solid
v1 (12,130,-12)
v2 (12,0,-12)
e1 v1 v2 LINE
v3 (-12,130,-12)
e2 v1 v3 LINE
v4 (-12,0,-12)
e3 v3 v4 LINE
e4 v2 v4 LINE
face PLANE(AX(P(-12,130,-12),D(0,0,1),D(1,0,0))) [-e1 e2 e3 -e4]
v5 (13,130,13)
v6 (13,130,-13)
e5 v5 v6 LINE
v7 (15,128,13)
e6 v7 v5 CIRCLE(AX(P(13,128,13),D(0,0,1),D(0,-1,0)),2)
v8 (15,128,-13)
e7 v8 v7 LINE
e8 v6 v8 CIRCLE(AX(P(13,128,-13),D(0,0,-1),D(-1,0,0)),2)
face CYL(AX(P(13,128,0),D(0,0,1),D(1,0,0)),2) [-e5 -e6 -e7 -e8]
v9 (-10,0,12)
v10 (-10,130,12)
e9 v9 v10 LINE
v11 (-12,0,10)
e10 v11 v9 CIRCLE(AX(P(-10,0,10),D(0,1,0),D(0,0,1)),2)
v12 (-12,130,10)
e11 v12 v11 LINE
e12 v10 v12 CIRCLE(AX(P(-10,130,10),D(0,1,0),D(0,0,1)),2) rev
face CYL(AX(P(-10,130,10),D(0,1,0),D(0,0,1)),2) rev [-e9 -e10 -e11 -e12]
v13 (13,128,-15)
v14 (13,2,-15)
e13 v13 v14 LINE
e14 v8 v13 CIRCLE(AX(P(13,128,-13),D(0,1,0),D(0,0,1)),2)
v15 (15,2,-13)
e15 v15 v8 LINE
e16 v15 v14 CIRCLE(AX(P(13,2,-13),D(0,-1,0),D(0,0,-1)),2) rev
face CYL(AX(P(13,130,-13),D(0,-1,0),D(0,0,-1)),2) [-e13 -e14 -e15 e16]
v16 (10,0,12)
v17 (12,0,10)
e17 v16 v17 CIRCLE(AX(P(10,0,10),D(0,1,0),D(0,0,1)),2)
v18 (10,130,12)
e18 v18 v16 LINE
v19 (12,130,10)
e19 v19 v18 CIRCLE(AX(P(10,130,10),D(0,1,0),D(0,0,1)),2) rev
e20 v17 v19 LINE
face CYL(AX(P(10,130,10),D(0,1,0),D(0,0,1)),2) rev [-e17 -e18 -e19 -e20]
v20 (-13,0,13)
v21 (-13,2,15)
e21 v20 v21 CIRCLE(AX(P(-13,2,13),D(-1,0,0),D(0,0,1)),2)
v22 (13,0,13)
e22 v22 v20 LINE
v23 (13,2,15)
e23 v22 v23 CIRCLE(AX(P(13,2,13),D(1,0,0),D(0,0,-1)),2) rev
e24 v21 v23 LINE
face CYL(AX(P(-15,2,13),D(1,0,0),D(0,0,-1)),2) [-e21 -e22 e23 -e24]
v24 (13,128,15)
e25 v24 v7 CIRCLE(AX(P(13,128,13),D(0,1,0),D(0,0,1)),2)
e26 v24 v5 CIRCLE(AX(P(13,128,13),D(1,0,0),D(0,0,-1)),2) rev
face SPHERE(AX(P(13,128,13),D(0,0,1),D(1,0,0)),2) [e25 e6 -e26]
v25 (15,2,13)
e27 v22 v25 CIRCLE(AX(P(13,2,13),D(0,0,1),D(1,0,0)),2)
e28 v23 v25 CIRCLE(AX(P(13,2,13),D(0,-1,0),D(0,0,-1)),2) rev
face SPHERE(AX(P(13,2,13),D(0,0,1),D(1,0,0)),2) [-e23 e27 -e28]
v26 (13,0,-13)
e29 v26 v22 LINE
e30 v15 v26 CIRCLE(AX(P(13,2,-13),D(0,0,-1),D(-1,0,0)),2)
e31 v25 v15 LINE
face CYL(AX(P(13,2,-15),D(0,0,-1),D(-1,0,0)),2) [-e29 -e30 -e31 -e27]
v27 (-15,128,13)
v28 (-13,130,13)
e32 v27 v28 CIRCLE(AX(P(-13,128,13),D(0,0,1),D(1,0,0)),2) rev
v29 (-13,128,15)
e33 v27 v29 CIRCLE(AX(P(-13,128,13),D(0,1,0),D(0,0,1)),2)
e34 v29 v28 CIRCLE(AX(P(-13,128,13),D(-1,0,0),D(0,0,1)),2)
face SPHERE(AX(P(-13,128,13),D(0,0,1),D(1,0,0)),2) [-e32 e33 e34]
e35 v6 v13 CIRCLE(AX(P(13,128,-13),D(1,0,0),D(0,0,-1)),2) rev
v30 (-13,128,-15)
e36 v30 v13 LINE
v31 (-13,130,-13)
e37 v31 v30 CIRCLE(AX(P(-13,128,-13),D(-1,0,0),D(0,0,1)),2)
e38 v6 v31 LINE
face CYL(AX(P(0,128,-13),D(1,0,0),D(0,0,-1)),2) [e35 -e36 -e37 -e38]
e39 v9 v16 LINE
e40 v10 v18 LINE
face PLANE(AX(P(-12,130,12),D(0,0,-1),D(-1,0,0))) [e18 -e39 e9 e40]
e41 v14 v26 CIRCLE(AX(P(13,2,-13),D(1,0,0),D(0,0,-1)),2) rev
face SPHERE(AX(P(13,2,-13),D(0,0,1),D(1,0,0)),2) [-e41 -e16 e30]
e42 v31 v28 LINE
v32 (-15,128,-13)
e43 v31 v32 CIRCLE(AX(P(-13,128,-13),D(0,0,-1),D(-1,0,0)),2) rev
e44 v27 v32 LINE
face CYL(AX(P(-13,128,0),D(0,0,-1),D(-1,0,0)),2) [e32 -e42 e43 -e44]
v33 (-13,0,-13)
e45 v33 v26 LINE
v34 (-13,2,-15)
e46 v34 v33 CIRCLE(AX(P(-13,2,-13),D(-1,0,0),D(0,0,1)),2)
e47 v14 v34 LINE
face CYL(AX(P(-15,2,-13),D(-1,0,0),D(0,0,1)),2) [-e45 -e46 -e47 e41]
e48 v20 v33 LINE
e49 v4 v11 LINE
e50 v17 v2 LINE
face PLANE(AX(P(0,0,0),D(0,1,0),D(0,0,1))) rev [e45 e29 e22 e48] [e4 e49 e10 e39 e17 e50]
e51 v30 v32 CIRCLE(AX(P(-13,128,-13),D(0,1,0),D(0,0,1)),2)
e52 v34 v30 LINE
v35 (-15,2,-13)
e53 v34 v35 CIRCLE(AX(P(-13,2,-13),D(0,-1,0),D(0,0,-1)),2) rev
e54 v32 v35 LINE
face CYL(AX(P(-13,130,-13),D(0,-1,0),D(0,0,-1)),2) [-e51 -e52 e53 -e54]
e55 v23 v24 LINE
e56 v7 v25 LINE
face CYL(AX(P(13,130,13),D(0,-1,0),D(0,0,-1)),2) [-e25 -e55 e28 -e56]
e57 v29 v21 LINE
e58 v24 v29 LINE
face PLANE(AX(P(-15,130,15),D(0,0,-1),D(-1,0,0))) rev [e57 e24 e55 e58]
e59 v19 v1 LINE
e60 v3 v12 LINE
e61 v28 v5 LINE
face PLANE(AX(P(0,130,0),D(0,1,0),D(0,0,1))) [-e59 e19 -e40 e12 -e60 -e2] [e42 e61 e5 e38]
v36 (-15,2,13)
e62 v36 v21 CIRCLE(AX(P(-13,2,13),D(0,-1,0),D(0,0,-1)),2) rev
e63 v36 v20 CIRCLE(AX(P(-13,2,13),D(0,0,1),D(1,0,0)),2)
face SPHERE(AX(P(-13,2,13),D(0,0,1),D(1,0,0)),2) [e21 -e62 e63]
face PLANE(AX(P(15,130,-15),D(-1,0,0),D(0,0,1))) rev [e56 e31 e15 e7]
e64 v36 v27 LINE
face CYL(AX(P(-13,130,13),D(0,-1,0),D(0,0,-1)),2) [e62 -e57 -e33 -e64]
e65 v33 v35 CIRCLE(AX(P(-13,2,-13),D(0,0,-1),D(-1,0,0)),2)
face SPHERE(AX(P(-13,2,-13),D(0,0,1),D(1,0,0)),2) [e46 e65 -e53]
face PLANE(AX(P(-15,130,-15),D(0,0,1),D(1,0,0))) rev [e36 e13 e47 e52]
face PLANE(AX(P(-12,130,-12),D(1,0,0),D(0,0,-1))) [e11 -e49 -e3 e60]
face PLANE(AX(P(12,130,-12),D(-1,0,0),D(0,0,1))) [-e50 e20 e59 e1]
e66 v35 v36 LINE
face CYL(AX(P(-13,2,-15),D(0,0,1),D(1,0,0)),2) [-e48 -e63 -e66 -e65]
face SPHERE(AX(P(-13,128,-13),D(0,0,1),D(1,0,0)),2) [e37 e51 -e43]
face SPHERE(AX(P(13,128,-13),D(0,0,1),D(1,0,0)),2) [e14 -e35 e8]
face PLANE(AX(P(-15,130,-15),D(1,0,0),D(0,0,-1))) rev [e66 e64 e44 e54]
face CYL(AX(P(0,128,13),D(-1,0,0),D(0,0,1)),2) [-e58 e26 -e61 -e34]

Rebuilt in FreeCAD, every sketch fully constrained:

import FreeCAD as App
import Part
import Sketcher

V = App.Vector


def edges_at(feature, points):
    """Names of the edges that pass closest to the given points."""
    edges = feature.Shape.Edges
    near = lambda p: min(range(len(edges)), key=lambda i: edges[i].distToShape(Part.Vertex(*p))[0])
    return sorted({f"Edge{near(p) + 1}" for p in points})

doc = App.newDocument("Part")
body = doc.addObject("PartDesign::Body", "Body")

# Sketch on XZ plane
sketch1 = body.newObject("Sketcher::SketchObject", "Sketch")
sketch1.AttachmentSupport = (doc.getObject("XZ_Plane"), [""])
sketch1.MapMode = "FlatFace"
sketch1.addGeometry([
    Part.LineSegment(V(-15, -15, 0), V(-15, 15, 0)),  # 0
    Part.LineSegment(V(-15, 15, 0), V(15, 15, 0)),  # 1
    Part.LineSegment(V(15, 15, 0), V(15, -15, 0)),  # 2
    Part.LineSegment(V(15, -15, 0), V(-15, -15, 0)),  # 3
    Part.LineSegment(V(12, 12, 0), V(-12, 12, 0)),  # 4
    Part.LineSegment(V(-12, 12, 0), V(-12, -12, 0)),  # 5
    Part.LineSegment(V(-12, -12, 0), V(12, -12, 0)),  # 6
    Part.LineSegment(V(12, -12, 0), V(12, 12, 0)),  # 7
], False)
sketch1.addConstraint([
    Sketcher.Constraint("Coincident", 0, 2, 1, 1),
    Sketcher.Constraint("Coincident", 1, 2, 2, 1),
    Sketcher.Constraint("Coincident", 2, 2, 3, 1),
    Sketcher.Constraint("Coincident", 3, 2, 0, 1),
    Sketcher.Constraint("Coincident", 4, 2, 5, 1),
    Sketcher.Constraint("Coincident", 5, 2, 6, 1),
    Sketcher.Constraint("Coincident", 6, 2, 7, 1),
    Sketcher.Constraint("Coincident", 7, 2, 4, 1),
    Sketcher.Constraint("Vertical", 0),
    Sketcher.Constraint("Horizontal", 1),
    Sketcher.Constraint("Vertical", 2),
    Sketcher.Constraint("Horizontal", 3),
    Sketcher.Constraint("Horizontal", 4),
    Sketcher.Constraint("Vertical", 5),
    Sketcher.Constraint("Horizontal", 6),
    Sketcher.Constraint("Vertical", 7),
    Sketcher.Constraint("Symmetric", 0, 2, 2, 2, -1, 1),
    Sketcher.Constraint("Symmetric", 4, 2, 6, 2, -1, 1),
    Sketcher.Constraint("Equal", 3, 0),
    Sketcher.Constraint("Equal", 6, 5),
    Sketcher.Constraint("DistanceX", 1, 1, 1, 2, 30.0),
    Sketcher.Constraint("DistanceX", 4, 2, 4, 1, 24.0),
])
pad1 = body.newObject("PartDesign::Pad", "Pad")
pad1.Profile = sketch1
pad1.Length = 130
pad1.Reversed = True
doc.recompute()

fillet = body.newObject("PartDesign::Fillet", "Fillet")
fillet.Base = (pad1, edges_at(pad1, [
    (-15, 130, 0),
    (0, 130, 15),
    (12, 65, 12),
    (-12, 65, 12),
    (15, 130, 0),
    (0, 0, 15),
    (-15, 0, 0),
    (0, 0, -15),
    (15, 0, 0),
    (0, 130, -15),
    (15, 65, 15),
    (-15, 65, 15),
    (-15, 65, -15),
    (15, 65, -15),
]))
fillet.Radius = 2

doc.recompute()
